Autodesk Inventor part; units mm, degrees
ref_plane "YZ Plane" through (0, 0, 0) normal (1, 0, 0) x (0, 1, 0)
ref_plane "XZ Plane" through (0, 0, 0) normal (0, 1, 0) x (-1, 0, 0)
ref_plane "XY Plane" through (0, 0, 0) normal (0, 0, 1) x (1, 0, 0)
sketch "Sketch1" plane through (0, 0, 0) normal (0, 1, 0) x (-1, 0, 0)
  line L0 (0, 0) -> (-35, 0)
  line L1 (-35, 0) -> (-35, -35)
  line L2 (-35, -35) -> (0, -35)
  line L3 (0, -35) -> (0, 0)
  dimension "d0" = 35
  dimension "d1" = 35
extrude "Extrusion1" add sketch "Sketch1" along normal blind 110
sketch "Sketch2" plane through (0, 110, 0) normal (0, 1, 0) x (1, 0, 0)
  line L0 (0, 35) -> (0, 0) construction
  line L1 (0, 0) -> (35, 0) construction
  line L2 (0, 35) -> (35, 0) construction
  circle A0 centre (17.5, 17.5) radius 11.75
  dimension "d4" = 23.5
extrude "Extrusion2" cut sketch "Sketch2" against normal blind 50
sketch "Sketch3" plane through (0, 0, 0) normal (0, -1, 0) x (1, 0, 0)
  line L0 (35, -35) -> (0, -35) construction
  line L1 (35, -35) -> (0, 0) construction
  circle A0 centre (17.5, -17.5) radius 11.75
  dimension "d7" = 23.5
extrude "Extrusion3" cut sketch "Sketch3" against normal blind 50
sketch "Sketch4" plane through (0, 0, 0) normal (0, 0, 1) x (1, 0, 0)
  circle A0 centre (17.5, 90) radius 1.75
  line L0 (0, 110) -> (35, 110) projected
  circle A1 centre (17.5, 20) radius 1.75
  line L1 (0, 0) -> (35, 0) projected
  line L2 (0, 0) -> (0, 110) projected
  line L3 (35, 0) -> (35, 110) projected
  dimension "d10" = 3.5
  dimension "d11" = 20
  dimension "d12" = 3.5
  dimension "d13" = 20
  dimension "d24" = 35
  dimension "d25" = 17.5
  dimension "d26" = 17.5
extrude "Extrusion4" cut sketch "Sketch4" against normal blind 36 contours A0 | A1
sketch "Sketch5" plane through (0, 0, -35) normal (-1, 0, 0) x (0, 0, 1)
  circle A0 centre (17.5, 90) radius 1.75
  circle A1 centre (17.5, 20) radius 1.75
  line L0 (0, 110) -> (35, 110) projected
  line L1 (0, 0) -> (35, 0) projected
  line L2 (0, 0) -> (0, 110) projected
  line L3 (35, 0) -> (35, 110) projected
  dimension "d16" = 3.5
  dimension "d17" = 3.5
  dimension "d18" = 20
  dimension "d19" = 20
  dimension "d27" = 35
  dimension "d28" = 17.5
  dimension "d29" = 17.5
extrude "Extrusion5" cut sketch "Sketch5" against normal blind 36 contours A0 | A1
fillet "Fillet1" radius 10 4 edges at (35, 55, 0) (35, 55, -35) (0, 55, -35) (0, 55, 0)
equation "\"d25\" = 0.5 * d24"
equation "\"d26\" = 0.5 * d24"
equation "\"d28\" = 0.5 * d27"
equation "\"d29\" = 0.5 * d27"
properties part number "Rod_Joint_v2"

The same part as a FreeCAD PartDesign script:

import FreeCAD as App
import Part
import Sketcher

V = App.Vector


def edges_at(feature, points):
    """Names of the edges that pass closest to the given points."""
    edges = feature.Shape.Edges
    near = lambda p: min(range(len(edges)), key=lambda i: edges[i].distToShape(Part.Vertex(*p))[0])
    return sorted({f"Edge{near(p) + 1}" for p in points})


def add_polygon(sketch, points):
    """Adds a closed chain of lines whose ends are joined by coincident constraints."""
    first, n = sketch.GeometryCount, len(points)
    for a, b in zip(points, points[1:] + points[:1]):
        sketch.addGeometry(Part.LineSegment(App.Vector(*a, 0), App.Vector(*b, 0)), False)
    for i in range(n):
        sketch.addConstraint(Sketcher.Constraint("Coincident", first + i, 2, first + (i + 1) % n, 1))

doc = App.newDocument("Part")
params = doc.addObject("Spreadsheet::Sheet", "Params")
for row, (alias, value) in enumerate([
    ("sketch1_width", "35 mm"),
    ("pad1_length", "110 mm"),
    ("sketch2_diameter", "23.5 mm"),
    ("pocket1_length", "50 mm"),
    ("sketch3_diameter", "23.5 mm"),
    ("pocket2_length", "50 mm"),
    ("sketch4_diameter", "3.5 mm"),
    ("pocket3_length", "36 mm"),
    ("sketch5_diameter", "3.5 mm"),
    ("pocket4_length", "36 mm"),
    ("fillet_radius", "10 mm"),
], start=1):
    params.set(f"A{row}", alias)
    params.set(f"B{row}", "=" + value)
    params.setAlias(f"B{row}", alias)

body = doc.addObject("PartDesign::Body", "Body")

sketch1 = body.newObject("Sketcher::SketchObject", "Sketch")
sketch1.AttachmentSupport = (doc.getObject("XZ_Plane"), [""])
sketch1.MapMode = "FlatFace"
add_polygon(sketch1, [(0, -35), (0, 0), (35, 0), (35, -35)])
sketch1.addConstraint([
    Sketcher.Constraint("Vertical", 0),
    Sketcher.Constraint("Horizontal", 1),
    Sketcher.Constraint("Vertical", 2),
    Sketcher.Constraint("Horizontal", 3),
    Sketcher.Constraint("Coincident", 0, 2, -1, 1),
    Sketcher.Constraint("Equal", 3, 0),
    Sketcher.Constraint("DistanceX", 1, 1, 1, 2, 35.0),
])
sketch1.setExpression("Constraints[10]", "Params.sketch1_width")
pad1 = body.newObject("PartDesign::Pad", "Pad")
pad1.Profile = sketch1
pad1.setExpression("Length", "Params.pad1_length")
pad1.Reversed = True

sketch2 = body.newObject("Sketcher::SketchObject", "Sketch001")
sketch2.AttachmentSupport = (doc.getObject("XZ_Plane"), [""])
sketch2.MapMode = "FlatFace"
sketch2.AttachmentOffset = App.Placement(V(0, 0, -110), App.Rotation())
sketch2.addGeometry(Part.Circle(V(17.5, -17.5, 0), V(0, 0, 1), 11.75), False)
sketch2.addConstraint([
    Sketcher.Constraint("Diameter", 0, 23.5),
    Sketcher.Constraint("DistanceX", -1, 1, 0, 3, 17.5),
    Sketcher.Constraint("DistanceY", 0, 3, -1, 1, 17.5),
])
sketch2.setExpression("Constraints[0]", "Params.sketch2_diameter")
pocket1 = body.newObject("PartDesign::Pocket", "Pocket")
pocket1.Profile = sketch2
pocket1.setExpression("Length", "Params.pocket1_length")
pocket1.Reversed = True

sketch3 = body.newObject("Sketcher::SketchObject", "Sketch002")
sketch3.AttachmentSupport = (doc.getObject("XZ_Plane"), [""])
sketch3.MapMode = "FlatFace"
sketch3.addGeometry(Part.Circle(V(17.5, -17.5, 0), V(0, 0, 1), 11.75), False)
sketch3.addConstraint([
    Sketcher.Constraint("Diameter", 0, 23.5),
    Sketcher.Constraint("DistanceX", -1, 1, 0, 3, 17.5),
    Sketcher.Constraint("DistanceY", 0, 3, -1, 1, 17.5),
])
sketch3.setExpression("Constraints[0]", "Params.sketch3_diameter")
pocket2 = body.newObject("PartDesign::Pocket", "Pocket001")
pocket2.Profile = sketch3
pocket2.setExpression("Length", "Params.pocket2_length")

sketch4 = body.newObject("Sketcher::SketchObject", "Sketch003")
sketch4.AttachmentSupport = (doc.getObject("XY_Plane"), [""])
sketch4.MapMode = "FlatFace"
sketch4.addGeometry([
    Part.Circle(V(17.5, 90, 0), V(0, 0, 1), 1.75),
    Part.Circle(V(17.5, 20, 0), V(0, 0, 1), 1.75),
], False)
sketch4.addConstraint([
    Sketcher.Constraint("Equal", 0, 1),
    Sketcher.Constraint("Vertical", 0, 3, 1, 3),
    Sketcher.Constraint("Diameter", 0, 3.5),
    Sketcher.Constraint("DistanceY", -1, 1, 1, 3, 20.0),
    Sketcher.Constraint("DistanceX", -1, 1, 0, 3, 17.5),
    Sketcher.Constraint("DistanceY", -1, 1, 0, 3, 90.0),
])
sketch4.setExpression("Constraints[2]", "Params.sketch4_diameter")
pocket3 = body.newObject("PartDesign::Pocket", "Pocket002")
pocket3.Profile = sketch4
pocket3.setExpression("Length", "Params.pocket3_length")

sketch5 = body.newObject("Sketcher::SketchObject", "Sketch004")
sketch5.AttachmentSupport = (doc.getObject("YZ_Plane"), [""])
sketch5.MapMode = "FlatFace"
sketch5.addGeometry([
    Part.Circle(V(90, -17.5, 0), V(0, 0, 1), 1.75),
    Part.Circle(V(20, -17.5, 0), V(0, 0, 1), 1.75),
], False)
sketch5.addConstraint([
    Sketcher.Constraint("Equal", 0, 1),
    Sketcher.Constraint("Horizontal", 0, 3, 1, 3),
    Sketcher.Constraint("Diameter", 0, 3.5),
    Sketcher.Constraint("DistanceX", -1, 1, 1, 3, 20.0),
    Sketcher.Constraint("DistanceY", 0, 3, -1, 1, 17.5),
    Sketcher.Constraint("DistanceX", -1, 1, 0, 3, 90.0),
])
sketch5.setExpression("Constraints[2]", "Params.sketch5_diameter")
pocket4 = body.newObject("PartDesign::Pocket", "Pocket003")
pocket4.Profile = sketch5
pocket4.setExpression("Length", "Params.pocket4_length")
pocket4.Reversed = True
doc.recompute()

fillet = body.newObject("PartDesign::Fillet", "Fillet")
fillet.Base = (pocket4, edges_at(pocket4, [
    (35, 55, 0),
    (35, 55, -35),
    (0, 55, -35),
    (0, 55, 0),
]))
fillet.setExpression("Radius", "Params.fillet_radius")

doc.recompute()
